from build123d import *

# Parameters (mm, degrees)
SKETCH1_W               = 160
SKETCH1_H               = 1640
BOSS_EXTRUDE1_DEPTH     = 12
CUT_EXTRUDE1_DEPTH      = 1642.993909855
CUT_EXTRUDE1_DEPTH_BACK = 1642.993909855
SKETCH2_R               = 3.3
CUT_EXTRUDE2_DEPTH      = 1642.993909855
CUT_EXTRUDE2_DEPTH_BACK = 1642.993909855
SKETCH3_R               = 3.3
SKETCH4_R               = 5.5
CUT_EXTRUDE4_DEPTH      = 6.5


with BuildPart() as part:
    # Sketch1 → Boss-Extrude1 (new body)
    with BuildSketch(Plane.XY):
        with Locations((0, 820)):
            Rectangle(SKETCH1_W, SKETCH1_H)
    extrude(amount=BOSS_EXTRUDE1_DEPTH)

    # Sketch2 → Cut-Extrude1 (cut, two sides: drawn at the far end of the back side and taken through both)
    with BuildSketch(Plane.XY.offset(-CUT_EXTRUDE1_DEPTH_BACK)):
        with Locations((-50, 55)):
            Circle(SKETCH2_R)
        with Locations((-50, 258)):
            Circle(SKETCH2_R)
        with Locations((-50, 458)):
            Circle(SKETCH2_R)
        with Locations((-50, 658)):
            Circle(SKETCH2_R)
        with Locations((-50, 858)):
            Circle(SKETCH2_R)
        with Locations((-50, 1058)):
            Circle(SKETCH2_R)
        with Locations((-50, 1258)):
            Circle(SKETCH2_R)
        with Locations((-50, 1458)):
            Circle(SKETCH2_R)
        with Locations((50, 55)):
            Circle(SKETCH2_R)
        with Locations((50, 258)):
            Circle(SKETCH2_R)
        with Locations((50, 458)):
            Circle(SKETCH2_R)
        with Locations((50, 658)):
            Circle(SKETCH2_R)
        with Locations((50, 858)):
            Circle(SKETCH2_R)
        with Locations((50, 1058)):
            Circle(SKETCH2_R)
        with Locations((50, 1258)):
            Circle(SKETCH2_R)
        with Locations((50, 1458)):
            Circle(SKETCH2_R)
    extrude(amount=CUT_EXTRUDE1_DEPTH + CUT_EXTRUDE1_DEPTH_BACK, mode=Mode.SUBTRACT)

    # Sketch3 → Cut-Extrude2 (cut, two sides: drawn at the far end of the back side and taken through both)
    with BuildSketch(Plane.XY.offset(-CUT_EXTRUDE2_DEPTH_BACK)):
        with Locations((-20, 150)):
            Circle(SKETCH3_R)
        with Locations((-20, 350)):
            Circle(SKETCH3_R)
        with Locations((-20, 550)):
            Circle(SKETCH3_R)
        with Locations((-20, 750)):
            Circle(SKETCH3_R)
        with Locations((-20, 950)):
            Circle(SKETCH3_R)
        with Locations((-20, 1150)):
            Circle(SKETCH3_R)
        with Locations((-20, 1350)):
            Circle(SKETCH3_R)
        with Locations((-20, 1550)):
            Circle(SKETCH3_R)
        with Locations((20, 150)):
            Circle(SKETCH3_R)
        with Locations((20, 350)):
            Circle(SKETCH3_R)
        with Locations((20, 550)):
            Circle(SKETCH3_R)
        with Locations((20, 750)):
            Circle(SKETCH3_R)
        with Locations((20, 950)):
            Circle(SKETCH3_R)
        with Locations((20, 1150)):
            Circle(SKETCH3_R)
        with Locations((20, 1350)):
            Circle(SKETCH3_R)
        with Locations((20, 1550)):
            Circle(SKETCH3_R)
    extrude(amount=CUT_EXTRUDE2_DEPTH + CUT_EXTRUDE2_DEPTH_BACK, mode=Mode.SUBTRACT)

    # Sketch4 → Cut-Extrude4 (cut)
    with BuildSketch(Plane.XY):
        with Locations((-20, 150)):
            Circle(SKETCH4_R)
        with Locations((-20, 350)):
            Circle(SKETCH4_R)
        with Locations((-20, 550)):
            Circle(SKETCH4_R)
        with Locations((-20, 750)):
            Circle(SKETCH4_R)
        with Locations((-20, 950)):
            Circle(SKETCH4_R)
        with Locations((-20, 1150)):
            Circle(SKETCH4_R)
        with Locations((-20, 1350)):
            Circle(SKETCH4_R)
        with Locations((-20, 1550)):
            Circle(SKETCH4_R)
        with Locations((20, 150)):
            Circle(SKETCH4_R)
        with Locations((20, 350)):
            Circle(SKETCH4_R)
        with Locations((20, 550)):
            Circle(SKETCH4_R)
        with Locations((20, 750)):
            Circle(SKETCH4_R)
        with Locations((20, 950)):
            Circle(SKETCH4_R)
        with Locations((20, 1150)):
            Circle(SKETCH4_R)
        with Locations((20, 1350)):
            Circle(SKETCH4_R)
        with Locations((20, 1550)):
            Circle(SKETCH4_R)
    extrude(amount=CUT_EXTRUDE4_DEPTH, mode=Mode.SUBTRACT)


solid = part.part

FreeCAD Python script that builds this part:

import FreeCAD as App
import Part
import Sketcher


def add_polygon(sketch, points):
    """Adds a closed chain of lines whose ends are joined by coincident constraints."""
    first, n = sketch.GeometryCount, len(points)
    for a, b in zip(points, points[1:] + points[:1]):
        sketch.addGeometry(Part.LineSegment(App.Vector(*a, 0), App.Vector(*b, 0)), False)
    for i in range(n):
        sketch.addConstraint(Sketcher.Constraint("Coincident", first + i, 2, first + (i + 1) % n, 1))

doc = App.newDocument("Part")
body = doc.addObject("PartDesign::Body", "Body")

sketch1 = body.newObject("Sketcher::SketchObject", "Sketch")
sketch1.AttachmentSupport = (doc.getObject("XY_Plane"), [""])
sketch1.MapMode = "FlatFace"
add_polygon(sketch1, [(-80, 1640), (-80, 0), (80, 0), (80, 1640)])
sketch1.addConstraint([
    Sketcher.Constraint("Vertical", 0),
    Sketcher.Constraint("Horizontal", 1),
    Sketcher.Constraint("Vertical", 2),
    Sketcher.Constraint("Horizontal", 3),
    Sketcher.Constraint("Symmetric", 0, 2, 1, 2, -1, 1),
    Sketcher.Constraint("DistanceX", 1, 1, 1, 2, 160.0),
    Sketcher.Constraint("DistanceY", 0, 2, 0, 1, 1640.0),
])
pad1 = body.newObject("PartDesign::Pad", "Pad")
pad1.Profile = sketch1
pad1.Length = 12

sketch2 = body.newObject("Sketcher::SketchObject", "Sketch001")
sketch2.AttachmentSupport = (doc.getObject("XY_Plane"), [""])
sketch2.MapMode = "FlatFace"
sketch2.addGeometry([
    Part.Circle(App.Vector(-50, 55, 0), App.Vector(0, 0, 1), 3.3),
    Part.Circle(App.Vector(-50, 258, 0), App.Vector(0, 0, 1), 3.3),
    Part.Circle(App.Vector(-50, 458, 0), App.Vector(0, 0, 1), 3.3),
    Part.Circle(App.Vector(-50, 658, 0), App.Vector(0, 0, 1), 3.3),
    Part.Circle(App.Vector(-50, 858, 0), App.Vector(0, 0, 1), 3.3),
    Part.Circle(App.Vector(-50, 1058, 0), App.Vector(0, 0, 1), 3.3),
    Part.Circle(App.Vector(-50, 1258, 0), App.Vector(0, 0, 1), 3.3),
    Part.Circle(App.Vector(-50, 1458, 0), App.Vector(0, 0, 1), 3.3),
    Part.Circle(App.Vector(50, 55, 0), App.Vector(0, 0, 1), 3.3),
    Part.Circle(App.Vector(50, 258, 0), App.Vector(0, 0, 1), 3.3),
    Part.Circle(App.Vector(50, 458, 0), App.Vector(0, 0, 1), 3.3),
    Part.Circle(App.Vector(50, 658, 0), App.Vector(0, 0, 1), 3.3),
    Part.Circle(App.Vector(50, 858, 0), App.Vector(0, 0, 1), 3.3),
    Part.Circle(App.Vector(50, 1058, 0), App.Vector(0, 0, 1), 3.3),
    Part.Circle(App.Vector(50, 1258, 0), App.Vector(0, 0, 1), 3.3),
    Part.Circle(App.Vector(50, 1458, 0), App.Vector(0, 0, 1), 3.3),
], False)
sketch2.addConstraint([
    Sketcher.Constraint("Equal", 0, 1),
    Sketcher.Constraint("Equal", 1, 2),
    Sketcher.Constraint("Equal", 2, 3),
    Sketcher.Constraint("Equal", 3, 4),
    Sketcher.Constraint("Equal", 4, 5),
    Sketcher.Constraint("Equal", 5, 6),
    Sketcher.Constraint("Equal", 6, 7),
    Sketcher.Constraint("Equal", 7, 8),
    Sketcher.Constraint("Equal", 8, 9),
    Sketcher.Constraint("Equal", 9, 10),
    Sketcher.Constraint("Equal", 10, 11),
    Sketcher.Constraint("Equal", 11, 12),
    Sketcher.Constraint("Equal", 12, 13),
    Sketcher.Constraint("Equal", 13, 14),
    Sketcher.Constraint("Equal", 14, 15),
    Sketcher.Constraint("Symmetric", 0, 3, 8, 3, -2),
    Sketcher.Constraint("Symmetric", 1, 3, 9, 3, -2),
    Sketcher.Constraint("Symmetric", 2, 3, 10, 3, -2),
    Sketcher.Constraint("Symmetric", 3, 3, 11, 3, -2),
    Sketcher.Constraint("Symmetric", 4, 3, 12, 3, -2),
    Sketcher.Constraint("Symmetric", 5, 3, 13, 3, -2),
    Sketcher.Constraint("Symmetric", 6, 3, 14, 3, -2),
    Sketcher.Constraint("Symmetric", 7, 3, 15, 3, -2),
    Sketcher.Constraint("Vertical", 0, 3, 1, 3),
    Sketcher.Constraint("Vertical", 1, 3, 2, 3),
    Sketcher.Constraint("Vertical", 2, 3, 3, 3),
    Sketcher.Constraint("Vertical", 3, 3, 4, 3),
    Sketcher.Constraint("Vertical", 4, 3, 5, 3),
    Sketcher.Constraint("Vertical", 5, 3, 6, 3),
    Sketcher.Constraint("Vertical", 6, 3, 7, 3),
    Sketcher.Constraint("Diameter", 0, 6.6),
    Sketcher.Constraint("DistanceX", 0, 3, -1, 1, 50.0),
    Sketcher.Constraint("DistanceY", -1, 1, 0, 3, 55.0),
    Sketcher.Constraint("DistanceY", -1, 1, 1, 3, 258.0),
    Sketcher.Constraint("DistanceY", -1, 1, 2, 3, 458.0),
    Sketcher.Constraint("DistanceY", -1, 1, 3, 3, 658.0),
    Sketcher.Constraint("DistanceY", -1, 1, 4, 3, 858.0),
    Sketcher.Constraint("DistanceY", -1, 1, 5, 3, 1058.0),
    Sketcher.Constraint("DistanceY", -1, 1, 6, 3, 1258.0),
    Sketcher.Constraint("DistanceY", -1, 1, 7, 3, 1458.0),
])
pocket1 = body.newObject("PartDesign::Pocket", "Pocket")
pocket1.Profile = sketch2
pocket1.Type = "ThroughAll"
pocket1.Midplane = True

sketch3 = body.newObject("Sketcher::SketchObject", "Sketch002")
sketch3.AttachmentSupport = (doc.getObject("XY_Plane"), [""])
sketch3.MapMode = "FlatFace"
sketch3.addGeometry([
    Part.Circle(App.Vector(-20, 150, 0), App.Vector(0, 0, 1), 3.3),
    Part.Circle(App.Vector(-20, 350, 0), App.Vector(0, 0, 1), 3.3),
    Part.Circle(App.Vector(-20, 550, 0), App.Vector(0, 0, 1), 3.3),
    Part.Circle(App.Vector(-20, 750, 0), App.Vector(0, 0, 1), 3.3),
    Part.Circle(App.Vector(-20, 950, 0), App.Vector(0, 0, 1), 3.3),
    Part.Circle(App.Vector(-20, 1150, 0), App.Vector(0, 0, 1), 3.3),
    Part.Circle(App.Vector(-20, 1350, 0), App.Vector(0, 0, 1), 3.3),
    Part.Circle(App.Vector(-20, 1550, 0), App.Vector(0, 0, 1), 3.3),
    Part.Circle(App.Vector(20, 150, 0), App.Vector(0, 0, 1), 3.3),
    Part.Circle(App.Vector(20, 350, 0), App.Vector(0, 0, 1), 3.3),
    Part.Circle(App.Vector(20, 550, 0), App.Vector(0, 0, 1), 3.3),
    Part.Circle(App.Vector(20, 750, 0), App.Vector(0, 0, 1), 3.3),
    Part.Circle(App.Vector(20, 950, 0), App.Vector(0, 0, 1), 3.3),
    Part.Circle(App.Vector(20, 1150, 0), App.Vector(0, 0, 1), 3.3),
    Part.Circle(App.Vector(20, 1350, 0), App.Vector(0, 0, 1), 3.3),
    Part.Circle(App.Vector(20, 1550, 0), App.Vector(0, 0, 1), 3.3),
], False)
sketch3.addConstraint([
    Sketcher.Constraint("Equal", 0, 1),
    Sketcher.Constraint("Equal", 1, 2),
    Sketcher.Constraint("Equal", 2, 3),
    Sketcher.Constraint("Equal", 3, 4),
    Sketcher.Constraint("Equal", 4, 5),
    Sketcher.Constraint("Equal", 5, 6),
    Sketcher.Constraint("Equal", 6, 7),
    Sketcher.Constraint("Equal", 7, 8),
    Sketcher.Constraint("Equal", 8, 9),
    Sketcher.Constraint("Equal", 9, 10),
    Sketcher.Constraint("Equal", 10, 11),
    Sketcher.Constraint("Equal", 11, 12),
    Sketcher.Constraint("Equal", 12, 13),
    Sketcher.Constraint("Equal", 13, 14),
    Sketcher.Constraint("Equal", 14, 15),
    Sketcher.Constraint("Symmetric", 0, 3, 8, 3, -2),
    Sketcher.Constraint("Symmetric", 1, 3, 9, 3, -2),
    Sketcher.Constraint("Symmetric", 2, 3, 10, 3, -2),
    Sketcher.Constraint("Symmetric", 3, 3, 11, 3, -2),
    Sketcher.Constraint("Symmetric", 4, 3, 12, 3, -2),
    Sketcher.Constraint("Symmetric", 5, 3, 13, 3, -2),
    Sketcher.Constraint("Symmetric", 6, 3, 14, 3, -2),
    Sketcher.Constraint("Symmetric", 7, 3, 15, 3, -2),
    Sketcher.Constraint("Vertical", 0, 3, 1, 3),
    Sketcher.Constraint("Vertical", 1, 3, 2, 3),
    Sketcher.Constraint("Vertical", 2, 3, 3, 3),
    Sketcher.Constraint("Vertical", 3, 3, 4, 3),
    Sketcher.Constraint("Vertical", 4, 3, 5, 3),
    Sketcher.Constraint("Vertical", 5, 3, 6, 3),
    Sketcher.Constraint("Vertical", 6, 3, 7, 3),
    Sketcher.Constraint("Diameter", 0, 6.6),
    Sketcher.Constraint("DistanceX", 0, 3, -1, 1, 20.0),
    Sketcher.Constraint("DistanceY", -1, 1, 0, 3, 150.0),
    Sketcher.Constraint("DistanceY", -1, 1, 1, 3, 350.0),
    Sketcher.Constraint("DistanceY", -1, 1, 2, 3, 550.0),
    Sketcher.Constraint("DistanceY", -1, 1, 3, 3, 750.0),
    Sketcher.Constraint("DistanceY", -1, 1, 4, 3, 950.0),
    Sketcher.Constraint("DistanceY", -1, 1, 5, 3, 1150.0),
    Sketcher.Constraint("DistanceY", -1, 1, 6, 3, 1350.0),
    Sketcher.Constraint("DistanceY", -1, 1, 7, 3, 1550.0),
])
pocket2 = body.newObject("PartDesign::Pocket", "Pocket001")
pocket2.Profile = sketch3
pocket2.Type = "ThroughAll"
pocket2.Midplane = True

sketch4 = body.newObject("Sketcher::SketchObject", "Sketch003")
sketch4.AttachmentSupport = (doc.getObject("XY_Plane"), [""])
sketch4.MapMode = "FlatFace"
sketch4.addGeometry([
    Part.Circle(App.Vector(-20, 150, 0), App.Vector(0, 0, 1), 5.5),
    Part.Circle(App.Vector(-20, 350, 0), App.Vector(0, 0, 1), 5.5),
    Part.Circle(App.Vector(-20, 550, 0), App.Vector(0, 0, 1), 5.5),
    Part.Circle(App.Vector(-20, 750, 0), App.Vector(0, 0, 1), 5.5),
    Part.Circle(App.Vector(-20, 950, 0), App.Vector(0, 0, 1), 5.5),
    Part.Circle(App.Vector(-20, 1150, 0), App.Vector(0, 0, 1), 5.5),
    Part.Circle(App.Vector(-20, 1350, 0), App.Vector(0, 0, 1), 5.5),
    Part.Circle(App.Vector(-20, 1550, 0), App.Vector(0, 0, 1), 5.5),
    Part.Circle(App.Vector(20, 150, 0), App.Vector(0, 0, 1), 5.5),
    Part.Circle(App.Vector(20, 350, 0), App.Vector(0, 0, 1), 5.5),
    Part.Circle(App.Vector(20, 550, 0), App.Vector(0, 0, 1), 5.5),
    Part.Circle(App.Vector(20, 750, 0), App.Vector(0, 0, 1), 5.5),
    Part.Circle(App.Vector(20, 950, 0), App.Vector(0, 0, 1), 5.5),
    Part.Circle(App.Vector(20, 1150, 0), App.Vector(0, 0, 1), 5.5),
    Part.Circle(App.Vector(20, 1350, 0), App.Vector(0, 0, 1), 5.5),
    Part.Circle(App.Vector(20, 1550, 0), App.Vector(0, 0, 1), 5.5),
], False)
sketch4.addConstraint([
    Sketcher.Constraint("Equal", 0, 1),
    Sketcher.Constraint("Equal", 1, 2),
    Sketcher.Constraint("Equal", 2, 3),
    Sketcher.Constraint("Equal", 3, 4),
    Sketcher.Constraint("Equal", 4, 5),
    Sketcher.Constraint("Equal", 5, 6),
    Sketcher.Constraint("Equal", 6, 7),
    Sketcher.Constraint("Equal", 7, 8),
    Sketcher.Constraint("Equal", 8, 9),
    Sketcher.Constraint("Equal", 9, 10),
    Sketcher.Constraint("Equal", 10, 11),
    Sketcher.Constraint("Equal", 11, 12),
    Sketcher.Constraint("Equal", 12, 13),
    Sketcher.Constraint("Equal", 13, 14),
    Sketcher.Constraint("Equal", 14, 15),
    Sketcher.Constraint("Symmetric", 0, 3, 8, 3, -2),
    Sketcher.Constraint("Symmetric", 1, 3, 9, 3, -2),
    Sketcher.Constraint("Symmetric", 2, 3, 10, 3, -2),
    Sketcher.Constraint("Symmetric", 3, 3, 11, 3, -2),
    Sketcher.Constraint("Symmetric", 4, 3, 12, 3, -2),
    Sketcher.Constraint("Symmetric", 5, 3, 13, 3, -2),
    Sketcher.Constraint("Symmetric", 6, 3, 14, 3, -2),
    Sketcher.Constraint("Symmetric", 7, 3, 15, 3, -2),
    Sketcher.Constraint("Vertical", 0, 3, 1, 3),
    Sketcher.Constraint("Vertical", 1, 3, 2, 3),
    Sketcher.Constraint("Vertical", 2, 3, 3, 3),
    Sketcher.Constraint("Vertical", 3, 3, 4, 3),
    Sketcher.Constraint("Vertical", 4, 3, 5, 3),
    Sketcher.Constraint("Vertical", 5, 3, 6, 3),
    Sketcher.Constraint("Vertical", 6, 3, 7, 3),
    Sketcher.Constraint("Diameter", 0, 11.0),
    Sketcher.Constraint("DistanceX", 0, 3, -1, 1, 20.0),
    Sketcher.Constraint("DistanceY", -1, 1, 0, 3, 150.0),
    Sketcher.Constraint("DistanceY", -1, 1, 1, 3, 350.0),
    Sketcher.Constraint("DistanceY", -1, 1, 2, 3, 550.0),
    Sketcher.Constraint("DistanceY", -1, 1, 3, 3, 750.0),
    Sketcher.Constraint("DistanceY", -1, 1, 4, 3, 950.0),
    Sketcher.Constraint("DistanceY", -1, 1, 5, 3, 1150.0),
    Sketcher.Constraint("DistanceY", -1, 1, 6, 3, 1350.0),
    Sketcher.Constraint("DistanceY", -1, 1, 7, 3, 1550.0),
])
pocket3 = body.newObject("PartDesign::Pocket", "Pocket002")
pocket3.Profile = sketch4
pocket3.Length = 6.5
pocket3.Reversed = True

doc.recompute()
